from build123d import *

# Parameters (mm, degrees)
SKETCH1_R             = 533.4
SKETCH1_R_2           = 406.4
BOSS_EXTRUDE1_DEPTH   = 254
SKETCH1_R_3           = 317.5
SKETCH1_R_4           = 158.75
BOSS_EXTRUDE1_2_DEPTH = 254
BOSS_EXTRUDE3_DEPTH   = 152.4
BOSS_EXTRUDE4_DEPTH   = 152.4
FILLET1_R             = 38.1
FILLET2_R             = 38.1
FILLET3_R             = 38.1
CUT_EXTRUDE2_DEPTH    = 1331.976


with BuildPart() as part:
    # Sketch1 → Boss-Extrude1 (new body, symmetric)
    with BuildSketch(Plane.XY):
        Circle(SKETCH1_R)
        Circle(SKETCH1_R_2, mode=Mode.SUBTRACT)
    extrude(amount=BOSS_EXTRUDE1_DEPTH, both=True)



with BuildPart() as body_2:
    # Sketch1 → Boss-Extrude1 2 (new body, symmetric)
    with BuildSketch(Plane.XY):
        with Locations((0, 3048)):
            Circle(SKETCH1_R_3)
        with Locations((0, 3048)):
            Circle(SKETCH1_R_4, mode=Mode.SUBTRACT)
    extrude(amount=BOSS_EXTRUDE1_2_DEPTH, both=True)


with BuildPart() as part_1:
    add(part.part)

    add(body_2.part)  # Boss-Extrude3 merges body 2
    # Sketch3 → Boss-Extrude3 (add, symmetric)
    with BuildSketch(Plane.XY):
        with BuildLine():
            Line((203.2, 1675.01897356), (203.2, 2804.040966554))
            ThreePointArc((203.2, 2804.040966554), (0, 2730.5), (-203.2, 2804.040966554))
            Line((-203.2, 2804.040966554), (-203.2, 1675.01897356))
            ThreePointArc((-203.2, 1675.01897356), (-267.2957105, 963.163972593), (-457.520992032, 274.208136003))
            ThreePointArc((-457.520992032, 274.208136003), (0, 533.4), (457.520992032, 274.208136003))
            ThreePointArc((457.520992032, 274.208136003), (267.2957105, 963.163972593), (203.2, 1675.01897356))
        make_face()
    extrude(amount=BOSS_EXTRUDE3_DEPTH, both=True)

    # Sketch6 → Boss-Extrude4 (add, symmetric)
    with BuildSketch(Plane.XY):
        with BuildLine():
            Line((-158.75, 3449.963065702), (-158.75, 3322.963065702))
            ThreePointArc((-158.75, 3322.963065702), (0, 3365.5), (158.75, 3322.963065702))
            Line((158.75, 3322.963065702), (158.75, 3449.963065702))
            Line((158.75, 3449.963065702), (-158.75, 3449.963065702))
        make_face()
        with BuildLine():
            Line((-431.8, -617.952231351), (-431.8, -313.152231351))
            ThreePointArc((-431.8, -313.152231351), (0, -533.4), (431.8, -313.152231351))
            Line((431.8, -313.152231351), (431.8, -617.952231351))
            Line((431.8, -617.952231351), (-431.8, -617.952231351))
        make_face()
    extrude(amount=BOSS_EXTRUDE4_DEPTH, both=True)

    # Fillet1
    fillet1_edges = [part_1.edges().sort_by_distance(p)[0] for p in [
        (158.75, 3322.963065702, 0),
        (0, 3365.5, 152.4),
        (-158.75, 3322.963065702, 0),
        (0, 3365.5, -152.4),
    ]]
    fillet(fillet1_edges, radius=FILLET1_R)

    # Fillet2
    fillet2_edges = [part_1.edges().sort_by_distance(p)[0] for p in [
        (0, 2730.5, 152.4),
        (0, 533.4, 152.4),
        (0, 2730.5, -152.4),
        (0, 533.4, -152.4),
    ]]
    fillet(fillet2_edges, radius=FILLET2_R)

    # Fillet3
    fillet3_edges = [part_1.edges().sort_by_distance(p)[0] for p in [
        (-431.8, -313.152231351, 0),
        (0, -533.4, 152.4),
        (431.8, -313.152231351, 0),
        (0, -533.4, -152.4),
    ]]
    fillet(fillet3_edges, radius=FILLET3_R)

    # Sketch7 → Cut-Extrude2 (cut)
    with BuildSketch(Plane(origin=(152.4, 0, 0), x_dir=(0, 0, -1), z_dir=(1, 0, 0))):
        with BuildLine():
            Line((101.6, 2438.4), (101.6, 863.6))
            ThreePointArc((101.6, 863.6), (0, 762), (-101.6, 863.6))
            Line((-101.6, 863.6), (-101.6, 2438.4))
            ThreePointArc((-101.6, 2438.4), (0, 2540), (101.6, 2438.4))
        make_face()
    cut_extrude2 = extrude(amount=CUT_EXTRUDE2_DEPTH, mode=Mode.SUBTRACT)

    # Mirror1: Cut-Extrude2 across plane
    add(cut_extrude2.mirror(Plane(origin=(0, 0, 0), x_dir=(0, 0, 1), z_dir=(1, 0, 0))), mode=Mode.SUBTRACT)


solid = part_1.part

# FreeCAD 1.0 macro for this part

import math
import FreeCAD as App
import Part
import Sketcher
from FreeCAD import Vector
Q = App.Units.Quantity


def edges_at(feature, points):
    """Names of the edges that pass closest to the given points."""
    edges = feature.Shape.Edges
    near = lambda p: min(range(len(edges)), key=lambda i: edges[i].distToShape(Part.Vertex(*p))[0])
    return sorted({f"Edge{near(p) + 1}" for p in points})

doc = App.newDocument("Part")
params = doc.addObject("Spreadsheet::Sheet", "Params")
for row, (alias, value) in enumerate([
    ("sketch1_diameter", "42 in"),
    ("sketch1_diameter2", "32 in"),
    ("pad1_length", "20 in"),
    ("sketch2_diameter", "25 in"),
    ("sketch2_diameter2", "12.5 in"),
    ("pad2_length", "20 in"),
    ("sketch3_radius", "21 in"),
    ("sketch3_radius2", "12.5 in"),
    ("pad3_length", "12 in"),
    ("sketch4_radius", "21 in"),
    ("sketch4_radius2", "12.5 in"),
    ("sketch4_width", "34 in"),
    ("sketch4_height", "5 in"),
    ("sketch4_height2", "12 in"),
    ("pad4_length", "12 in"),
    ("fillet_radius", "1.5 in"),
    ("fillet2_radius", "1.5 in"),
    ("fillet3_radius", "1.5 in"),
    ("sketch5_radius", "4 in"),
    ("sketch5_width", "62 in"),
    ("pocket1_length", "52.44 in"),
], start=1):
    params.set(f"A{row}", alias)
    params.set(f"B{row}", "=" + value)
    params.setAlias(f"B{row}", alias)

body = doc.addObject("PartDesign::Body", "Body")

# Sketch on XY plane
sketch1 = body.newObject("Sketcher::SketchObject", "Sketch")
sketch1.AttachmentSupport = (doc.getObject("XY_Plane"), [""])
sketch1.MapMode = "FlatFace"
sketch1.addGeometry(Part.Circle(Vector(0, 0, 0), Vector(0, 0, 1), 533), False)
sketch1.addGeometry(Part.Circle(Vector(0, 0, 0), Vector(0, 0, 1), 406), False)
sketch1.addConstraint(Sketcher.Constraint("Coincident", 0, 3, -1, 1))
sketch1.addConstraint(Sketcher.Constraint("Coincident", 1, 3, -1, 1))
sketch1.addConstraint(Sketcher.Constraint("Diameter", 0, Q("42 in")))
sketch1.addConstraint(Sketcher.Constraint("Diameter", 1, Q("32 in")))
sketch1.setExpression("Constraints[2]", "Params.sketch1_diameter")
sketch1.setExpression("Constraints[3]", "Params.sketch1_diameter2")
pad1 = body.newObject("PartDesign::Pad", "Pad")
pad1.Profile = sketch1
pad1.setExpression("Length", "Params.pad1_length")
pad1.Midplane = True
body2 = doc.addObject("PartDesign::Body", "Body001")

# Sketch on XY plane
sketch2 = body2.newObject("Sketcher::SketchObject", "Sketch001")
sketch2.AttachmentSupport = (doc.getObject("XY_Plane001"), [""])
sketch2.MapMode = "FlatFace"
sketch2.addGeometry(Part.Circle(Vector(0, 3048, 0), Vector(0, 0, 1), 318), False)
sketch2.addGeometry(Part.Circle(Vector(0, 3048, 0), Vector(0, 0, 1), 159), False)
sketch2.addConstraint(Sketcher.Constraint("Coincident", 1, 3, 0, 3))
sketch2.addConstraint(Sketcher.Constraint("PointOnObject", 0, 3, -2))
sketch2.addConstraint(Sketcher.Constraint("Diameter", 0, Q("25 in")))
sketch2.addConstraint(Sketcher.Constraint("Diameter", 1, Q("12.5 in")))
sketch2.addConstraint(Sketcher.Constraint("DistanceY", -1, 1, 0, 3, Q("120 in")))
sketch2.setExpression("Constraints[2]", "Params.sketch2_diameter")
sketch2.setExpression("Constraints[3]", "Params.sketch2_diameter2")
pad2 = body2.newObject("PartDesign::Pad", "Pad001")
pad2.Profile = sketch2
pad2.setExpression("Length", "Params.pad2_length")
pad2.Midplane = True
body.AllowCompound = True
doc.recompute()

boolean = body.newObject("PartDesign::Boolean", "Boolean")
boolean.Type = "Fuse"
boolean.addObjects([body2])

# Sketch on XY plane
sketch3 = body.newObject("Sketcher::SketchObject", "Sketch002")
sketch3.AttachmentSupport = (doc.getObject("XY_Plane"), [""])
sketch3.MapMode = "FlatFace"
sketch3.addGeometry(Part.LineSegment(Vector(203, 1675, 0), Vector(203, 2804, 0)), False)
sketch3.addGeometry(Part.ArcOfCircle(Part.Circle(Vector(0, 3048, 0), Vector(0, 0, 1), 317), math.radians(-130), math.radians(-50)), False)
sketch3.addGeometry(Part.LineSegment(Vector(-203, 2804, 0), Vector(-203, 1675, 0)), False)
sketch3.addGeometry(Part.ArcOfCircle(Part.Circle(Vector(-4188, 1675, 0), Vector(0, 0, 1), 3985), math.radians(-21), math.radians(0)), False)
sketch3.addGeometry(Part.ArcOfCircle(Part.Circle(Vector(0, 0, 0), Vector(0, 0, 1), 533), math.radians(31), math.radians(149)), False)
sketch3.addGeometry(Part.ArcOfCircle(Part.Circle(Vector(4188, 1675, 0), Vector(0, 0, 1), 3985), math.radians(-180), math.radians(-159)), False)
sketch3.addConstraint(Sketcher.Constraint("Coincident", 0, 2, 1, 2))
sketch3.addConstraint(Sketcher.Constraint("Coincident", 1, 1, 2, 1))
sketch3.addConstraint(Sketcher.Constraint("Coincident", 2, 2, 3, 2))
sketch3.addConstraint(Sketcher.Constraint("Coincident", 3, 1, 4, 2))
sketch3.addConstraint(Sketcher.Constraint("Coincident", 4, 1, 5, 2))
sketch3.addConstraint(Sketcher.Constraint("Coincident", 5, 1, 0, 1))
sketch3.addConstraint(Sketcher.Constraint("Vertical", 0))
sketch3.addConstraint(Sketcher.Constraint("Vertical", 2))
sketch3.addConstraint(Sketcher.Constraint("Coincident", 4, 3, -1, 1))
sketch3.addConstraint(Sketcher.Constraint("Equal", 3, 5))
sketch3.addConstraint(Sketcher.Constraint("Symmetric", 3, 3, 5, 3, -2))
sketch3.addConstraint(Sketcher.Constraint("PointOnObject", 1, 3, -2))
sketch3.addConstraint(Sketcher.Constraint("Horizontal", 5, 3, 2, 2))
sketch3.addConstraint(Sketcher.Constraint("Equal", 0, 2))
sketch3.addConstraint(Sketcher.Constraint("Radius", 4, Q("21 in")))
sketch3.addConstraint(Sketcher.Constraint("Radius", 1, Q("12.5 in")))
sketch3.addConstraint(Sketcher.Constraint("DistanceY", -1, 1, 1, 3, Q("120 in")))
sketch3.addConstraint(Sketcher.Constraint("DistanceX", -1, 1, 0, 2, Q("8 in")))
sketch3.addConstraint(Sketcher.Constraint("Radius", 3, 3985.023323))
sketch3.addConstraint(Sketcher.Constraint("DistanceY", 0, 1, 0, 2, 1129.021993))
sketch3.setExpression("Constraints[14]", "Params.sketch3_radius")
sketch3.setExpression("Constraints[15]", "Params.sketch3_radius2")
pad3 = body.newObject("PartDesign::Pad", "Pad002")
pad3.Profile = sketch3
pad3.setExpression("Length", "Params.pad3_length")
pad3.Midplane = True

# Sketch on XY plane
sketch4 = body.newObject("Sketcher::SketchObject", "Sketch003")
sketch4.AttachmentSupport = (doc.getObject("XY_Plane"), [""])
sketch4.MapMode = "FlatFace"
sketch4.addGeometry(Part.LineSegment(Vector(-159, 3450, 0), Vector(-159, 3323, 0)), False)
sketch4.addGeometry(Part.ArcOfCircle(Part.Circle(Vector(0, 3048, 0), Vector(0, 0, 1), 318), math.radians(60), math.radians(120)), False)
sketch4.addGeometry(Part.LineSegment(Vector(159, 3323, 0), Vector(159, 3450, 0)), False)
sketch4.addGeometry(Part.LineSegment(Vector(159, 3450, 0), Vector(-159, 3450, 0)), False)
sketch4.addGeometry(Part.LineSegment(Vector(-432, -313, 0), Vector(-432, -618, 0)), False)
sketch4.addGeometry(Part.LineSegment(Vector(-432, -618, 0), Vector(432, -618, 0)), False)
sketch4.addGeometry(Part.LineSegment(Vector(432, -618, 0), Vector(432, -313, 0)), False)
sketch4.addGeometry(Part.ArcOfCircle(Part.Circle(Vector(0, 0, 0), Vector(0, 0, 1), 533), math.radians(-144), math.radians(-36)), False)
sketch4.addConstraint(Sketcher.Constraint("Coincident", 0, 2, 1, 2))
sketch4.addConstraint(Sketcher.Constraint("Coincident", 1, 1, 2, 1))
sketch4.addConstraint(Sketcher.Constraint("Coincident", 2, 2, 3, 1))
sketch4.addConstraint(Sketcher.Constraint("Coincident", 3, 2, 0, 1))
sketch4.addConstraint(Sketcher.Constraint("Coincident", 4, 2, 5, 1))
sketch4.addConstraint(Sketcher.Constraint("Coincident", 5, 2, 6, 1))
sketch4.addConstraint(Sketcher.Constraint("Coincident", 6, 2, 7, 2))
sketch4.addConstraint(Sketcher.Constraint("Coincident", 7, 1, 4, 1))
sketch4.addConstraint(Sketcher.Constraint("Vertical", 0))
sketch4.addConstraint(Sketcher.Constraint("Vertical", 2))
sketch4.addConstraint(Sketcher.Constraint("Horizontal", 3))
sketch4.addConstraint(Sketcher.Constraint("Vertical", 4))
sketch4.addConstraint(Sketcher.Constraint("Horizontal", 5))
sketch4.addConstraint(Sketcher.Constraint("Vertical", 6))
sketch4.addConstraint(Sketcher.Constraint("Coincident", 7, 3, -1, 1))
sketch4.addConstraint(Sketcher.Constraint("Symmetric", 0, 2, 1, 1, -2))
sketch4.addConstraint(Sketcher.Constraint("Horizontal", 6, 2, 7, 1))
sketch4.addConstraint(Sketcher.Constraint("Radius", 7, Q("21 in")))
sketch4.addConstraint(Sketcher.Constraint("Radius", 1, Q("12.5 in")))
sketch4.addConstraint(Sketcher.Constraint("DistanceX", 5, 1, 5, 2, Q("34 in")))
sketch4.addConstraint(Sketcher.Constraint("DistanceY", 0, 2, 0, 1, Q("5 in")))
sketch4.addConstraint(Sketcher.Constraint("DistanceY", 4, 2, 4, 1, Q("12 in")))
sketch4.addConstraint(Sketcher.Constraint("DistanceX", 3, 2, 3, 1, Q("12.5 in")))
sketch4.addConstraint(Sketcher.Constraint("DistanceY", -1, 1, 1, 3, Q("120 in")))
sketch4.setExpression("Constraints[17]", "Params.sketch4_radius")
sketch4.setExpression("Constraints[18]", "Params.sketch4_radius2")
sketch4.setExpression("Constraints[19]", "Params.sketch4_width")
sketch4.setExpression("Constraints[20]", "Params.sketch4_height")
sketch4.setExpression("Constraints[21]", "Params.sketch4_height2")
pad4 = body.newObject("PartDesign::Pad", "Pad003")
pad4.Profile = sketch4
pad4.setExpression("Length", "Params.pad4_length")
pad4.Midplane = True
doc.recompute()

fillet = body.newObject("PartDesign::Fillet", "Fillet")
fillet.Base = (pad4, edges_at(pad4, [
    (158.75, 3322.963, 0),
    (0, 3365.5, 152.4),
    (-158.75, 3322.963, 0),
    (0, 3365.5, -152.4),
]))
fillet.setExpression("Radius", "Params.fillet_radius")
doc.recompute()

fillet2 = body.newObject("PartDesign::Fillet", "Fillet001")
fillet2.Base = (fillet, edges_at(fillet, [
    (0, 2730.5, 152.4),
    (0, 533.4, 152.4),
    (0, 2730.5, -152.4),
    (0, 533.4, -152.4),
]))
fillet2.setExpression("Radius", "Params.fillet2_radius")
doc.recompute()

fillet3 = body.newObject("PartDesign::Fillet", "Fillet002")
fillet3.Base = (fillet2, edges_at(fillet2, [
    (-431.8, -313.152, 0),
    (0, -533.4, 152.4),
    (431.8, -313.152, 0),
    (0, -533.4, -152.4),
]))
fillet3.setExpression("Radius", "Params.fillet3_radius")

# Sketch on YZ plane
sketch5 = body.newObject("Sketcher::SketchObject", "Sketch004")
sketch5.AttachmentSupport = (doc.getObject("YZ_Plane"), [""])
sketch5.MapMode = "FlatFace"
sketch5.AttachmentOffset = App.Placement(Vector(0, 0, 6 * 25.4), App.Rotation())
sketch5.addGeometry(Part.LineSegment(Vector(864, -102, 0), Vector(2438, -102, 0)), False)
sketch5.addGeometry(Part.ArcOfCircle(Part.Circle(Vector(2438, 0, 0), Vector(0, 0, 1), 102), math.radians(-90), math.radians(90)), False)
sketch5.addGeometry(Part.LineSegment(Vector(2438, 102, 0), Vector(864, 102, 0)), False)
sketch5.addGeometry(Part.ArcOfCircle(Part.Circle(Vector(864, 0, 0), Vector(0, 0, 1), 102), math.radians(90), math.radians(270)), False)
sketch5.addConstraint(Sketcher.Constraint("Tangent", 0, 2, 1, 1))
sketch5.addConstraint(Sketcher.Constraint("Tangent", 1, 2, 2, 1))
sketch5.addConstraint(Sketcher.Constraint("Tangent", 2, 2, 3, 1))
sketch5.addConstraint(Sketcher.Constraint("Tangent", 3, 2, 0, 1))
sketch5.addConstraint(Sketcher.Constraint("Horizontal", 0))
sketch5.addConstraint(Sketcher.Constraint("Horizontal", 2))
sketch5.addConstraint(Sketcher.Constraint("PointOnObject", 1, 3, -1))
sketch5.addConstraint(Sketcher.Constraint("Radius", 1, Q("4 in")))
sketch5.addConstraint(Sketcher.Constraint("DistanceX", 0, 1, 0, 2, Q("62 in")))
sketch5.addConstraint(Sketcher.Constraint("DistanceX", -1, 1, 1, 3, Q("96 in")))
sketch5.setExpression("Constraints[7]", "Params.sketch5_radius")
sketch5.setExpression("Constraints[8]", "Params.sketch5_width")
pocket1 = body.newObject("PartDesign::Pocket", "Pocket")
pocket1.Profile = sketch5
pocket1.setExpression("Length", "Params.pocket1_length")
pocket1.Reversed = True
doc.recompute()

mirrored = body.newObject("PartDesign::Mirrored", "Mirrored")
mirrored.Originals = [pocket1]
mirrored.MirrorPlane = (doc.getObject("YZ_Plane"), [""])
body.Tip = mirrored

doc.recompute()
